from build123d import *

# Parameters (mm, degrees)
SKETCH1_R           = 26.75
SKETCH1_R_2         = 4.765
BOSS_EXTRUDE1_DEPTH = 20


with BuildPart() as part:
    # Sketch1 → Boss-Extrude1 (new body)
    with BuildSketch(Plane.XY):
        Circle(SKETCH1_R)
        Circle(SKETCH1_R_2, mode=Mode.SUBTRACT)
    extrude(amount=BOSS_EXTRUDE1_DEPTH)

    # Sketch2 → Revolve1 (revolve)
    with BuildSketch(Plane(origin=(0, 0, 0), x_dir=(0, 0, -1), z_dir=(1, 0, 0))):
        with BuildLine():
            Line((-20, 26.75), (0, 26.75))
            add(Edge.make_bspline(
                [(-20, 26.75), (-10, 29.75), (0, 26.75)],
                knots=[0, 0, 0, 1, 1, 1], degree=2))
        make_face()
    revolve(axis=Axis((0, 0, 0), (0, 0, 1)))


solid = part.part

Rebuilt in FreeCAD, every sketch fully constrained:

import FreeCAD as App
import Part
import Sketcher

V = App.Vector
Q = App.Units.Quantity

doc = App.newDocument("Part")
body = doc.addObject("PartDesign::Body", "Body")

# Sketch on XY plane
sketch1 = body.newObject("Sketcher::SketchObject", "Sketch")
sketch1.AttachmentSupport = (doc.getObject("XY_Plane"), [""])
sketch1.MapMode = "FlatFace"
sketch1.addGeometry([
    Part.Circle(V(0, 0, 0), V(0, 0, 1), 26.8),
    Part.Circle(V(0, 0, 0), V(0, 0, 1), 4.8),
], False)
sketch1.addConstraint([
    Sketcher.Constraint("Coincident", 0, 3, -1, 1),
    Sketcher.Constraint("Coincident", 1, 3, -1, 1),
    Sketcher.Constraint("Diameter", 0, Q("53.5 mm")),
    Sketcher.Constraint("Diameter", 1, Q("9.53 mm")),
])
pad1 = body.newObject("PartDesign::Pad", "Pad")
pad1.Profile = sketch1
pad1.Length = 20

# Sketch on YZ plane
sketch2 = body.newObject("Sketcher::SketchObject", "Sketch001")
sketch2.AttachmentSupport = (doc.getObject("YZ_Plane"), [""])
sketch2.MapMode = "FlatFace"
sketch2.addGeometry([
    Part.LineSegment(V(26.75, 20, 0), V(26.75, 0, 0)),
    Part.BSplineCurve([V(26.75, 20, 0), V(29.75, 10, 0), V(26.75, 0, 0)], [3, 3], [0, 1], False, 2, [1, 1, 1], False),
], False)
sketch2.addConstraint([
    Sketcher.Constraint("Block", 1),
    Sketcher.Constraint("Coincident", 0, 1, 1, 1),
    Sketcher.Constraint("Coincident", 1, 2, 0, 2),
])
revolution = body.newObject("PartDesign::Revolution", "Revolution")
revolution.Profile = sketch2
revolution.ReferenceAxis = (sketch2, ["V_Axis"])
revolution.Angle = 360

doc.recompute()
